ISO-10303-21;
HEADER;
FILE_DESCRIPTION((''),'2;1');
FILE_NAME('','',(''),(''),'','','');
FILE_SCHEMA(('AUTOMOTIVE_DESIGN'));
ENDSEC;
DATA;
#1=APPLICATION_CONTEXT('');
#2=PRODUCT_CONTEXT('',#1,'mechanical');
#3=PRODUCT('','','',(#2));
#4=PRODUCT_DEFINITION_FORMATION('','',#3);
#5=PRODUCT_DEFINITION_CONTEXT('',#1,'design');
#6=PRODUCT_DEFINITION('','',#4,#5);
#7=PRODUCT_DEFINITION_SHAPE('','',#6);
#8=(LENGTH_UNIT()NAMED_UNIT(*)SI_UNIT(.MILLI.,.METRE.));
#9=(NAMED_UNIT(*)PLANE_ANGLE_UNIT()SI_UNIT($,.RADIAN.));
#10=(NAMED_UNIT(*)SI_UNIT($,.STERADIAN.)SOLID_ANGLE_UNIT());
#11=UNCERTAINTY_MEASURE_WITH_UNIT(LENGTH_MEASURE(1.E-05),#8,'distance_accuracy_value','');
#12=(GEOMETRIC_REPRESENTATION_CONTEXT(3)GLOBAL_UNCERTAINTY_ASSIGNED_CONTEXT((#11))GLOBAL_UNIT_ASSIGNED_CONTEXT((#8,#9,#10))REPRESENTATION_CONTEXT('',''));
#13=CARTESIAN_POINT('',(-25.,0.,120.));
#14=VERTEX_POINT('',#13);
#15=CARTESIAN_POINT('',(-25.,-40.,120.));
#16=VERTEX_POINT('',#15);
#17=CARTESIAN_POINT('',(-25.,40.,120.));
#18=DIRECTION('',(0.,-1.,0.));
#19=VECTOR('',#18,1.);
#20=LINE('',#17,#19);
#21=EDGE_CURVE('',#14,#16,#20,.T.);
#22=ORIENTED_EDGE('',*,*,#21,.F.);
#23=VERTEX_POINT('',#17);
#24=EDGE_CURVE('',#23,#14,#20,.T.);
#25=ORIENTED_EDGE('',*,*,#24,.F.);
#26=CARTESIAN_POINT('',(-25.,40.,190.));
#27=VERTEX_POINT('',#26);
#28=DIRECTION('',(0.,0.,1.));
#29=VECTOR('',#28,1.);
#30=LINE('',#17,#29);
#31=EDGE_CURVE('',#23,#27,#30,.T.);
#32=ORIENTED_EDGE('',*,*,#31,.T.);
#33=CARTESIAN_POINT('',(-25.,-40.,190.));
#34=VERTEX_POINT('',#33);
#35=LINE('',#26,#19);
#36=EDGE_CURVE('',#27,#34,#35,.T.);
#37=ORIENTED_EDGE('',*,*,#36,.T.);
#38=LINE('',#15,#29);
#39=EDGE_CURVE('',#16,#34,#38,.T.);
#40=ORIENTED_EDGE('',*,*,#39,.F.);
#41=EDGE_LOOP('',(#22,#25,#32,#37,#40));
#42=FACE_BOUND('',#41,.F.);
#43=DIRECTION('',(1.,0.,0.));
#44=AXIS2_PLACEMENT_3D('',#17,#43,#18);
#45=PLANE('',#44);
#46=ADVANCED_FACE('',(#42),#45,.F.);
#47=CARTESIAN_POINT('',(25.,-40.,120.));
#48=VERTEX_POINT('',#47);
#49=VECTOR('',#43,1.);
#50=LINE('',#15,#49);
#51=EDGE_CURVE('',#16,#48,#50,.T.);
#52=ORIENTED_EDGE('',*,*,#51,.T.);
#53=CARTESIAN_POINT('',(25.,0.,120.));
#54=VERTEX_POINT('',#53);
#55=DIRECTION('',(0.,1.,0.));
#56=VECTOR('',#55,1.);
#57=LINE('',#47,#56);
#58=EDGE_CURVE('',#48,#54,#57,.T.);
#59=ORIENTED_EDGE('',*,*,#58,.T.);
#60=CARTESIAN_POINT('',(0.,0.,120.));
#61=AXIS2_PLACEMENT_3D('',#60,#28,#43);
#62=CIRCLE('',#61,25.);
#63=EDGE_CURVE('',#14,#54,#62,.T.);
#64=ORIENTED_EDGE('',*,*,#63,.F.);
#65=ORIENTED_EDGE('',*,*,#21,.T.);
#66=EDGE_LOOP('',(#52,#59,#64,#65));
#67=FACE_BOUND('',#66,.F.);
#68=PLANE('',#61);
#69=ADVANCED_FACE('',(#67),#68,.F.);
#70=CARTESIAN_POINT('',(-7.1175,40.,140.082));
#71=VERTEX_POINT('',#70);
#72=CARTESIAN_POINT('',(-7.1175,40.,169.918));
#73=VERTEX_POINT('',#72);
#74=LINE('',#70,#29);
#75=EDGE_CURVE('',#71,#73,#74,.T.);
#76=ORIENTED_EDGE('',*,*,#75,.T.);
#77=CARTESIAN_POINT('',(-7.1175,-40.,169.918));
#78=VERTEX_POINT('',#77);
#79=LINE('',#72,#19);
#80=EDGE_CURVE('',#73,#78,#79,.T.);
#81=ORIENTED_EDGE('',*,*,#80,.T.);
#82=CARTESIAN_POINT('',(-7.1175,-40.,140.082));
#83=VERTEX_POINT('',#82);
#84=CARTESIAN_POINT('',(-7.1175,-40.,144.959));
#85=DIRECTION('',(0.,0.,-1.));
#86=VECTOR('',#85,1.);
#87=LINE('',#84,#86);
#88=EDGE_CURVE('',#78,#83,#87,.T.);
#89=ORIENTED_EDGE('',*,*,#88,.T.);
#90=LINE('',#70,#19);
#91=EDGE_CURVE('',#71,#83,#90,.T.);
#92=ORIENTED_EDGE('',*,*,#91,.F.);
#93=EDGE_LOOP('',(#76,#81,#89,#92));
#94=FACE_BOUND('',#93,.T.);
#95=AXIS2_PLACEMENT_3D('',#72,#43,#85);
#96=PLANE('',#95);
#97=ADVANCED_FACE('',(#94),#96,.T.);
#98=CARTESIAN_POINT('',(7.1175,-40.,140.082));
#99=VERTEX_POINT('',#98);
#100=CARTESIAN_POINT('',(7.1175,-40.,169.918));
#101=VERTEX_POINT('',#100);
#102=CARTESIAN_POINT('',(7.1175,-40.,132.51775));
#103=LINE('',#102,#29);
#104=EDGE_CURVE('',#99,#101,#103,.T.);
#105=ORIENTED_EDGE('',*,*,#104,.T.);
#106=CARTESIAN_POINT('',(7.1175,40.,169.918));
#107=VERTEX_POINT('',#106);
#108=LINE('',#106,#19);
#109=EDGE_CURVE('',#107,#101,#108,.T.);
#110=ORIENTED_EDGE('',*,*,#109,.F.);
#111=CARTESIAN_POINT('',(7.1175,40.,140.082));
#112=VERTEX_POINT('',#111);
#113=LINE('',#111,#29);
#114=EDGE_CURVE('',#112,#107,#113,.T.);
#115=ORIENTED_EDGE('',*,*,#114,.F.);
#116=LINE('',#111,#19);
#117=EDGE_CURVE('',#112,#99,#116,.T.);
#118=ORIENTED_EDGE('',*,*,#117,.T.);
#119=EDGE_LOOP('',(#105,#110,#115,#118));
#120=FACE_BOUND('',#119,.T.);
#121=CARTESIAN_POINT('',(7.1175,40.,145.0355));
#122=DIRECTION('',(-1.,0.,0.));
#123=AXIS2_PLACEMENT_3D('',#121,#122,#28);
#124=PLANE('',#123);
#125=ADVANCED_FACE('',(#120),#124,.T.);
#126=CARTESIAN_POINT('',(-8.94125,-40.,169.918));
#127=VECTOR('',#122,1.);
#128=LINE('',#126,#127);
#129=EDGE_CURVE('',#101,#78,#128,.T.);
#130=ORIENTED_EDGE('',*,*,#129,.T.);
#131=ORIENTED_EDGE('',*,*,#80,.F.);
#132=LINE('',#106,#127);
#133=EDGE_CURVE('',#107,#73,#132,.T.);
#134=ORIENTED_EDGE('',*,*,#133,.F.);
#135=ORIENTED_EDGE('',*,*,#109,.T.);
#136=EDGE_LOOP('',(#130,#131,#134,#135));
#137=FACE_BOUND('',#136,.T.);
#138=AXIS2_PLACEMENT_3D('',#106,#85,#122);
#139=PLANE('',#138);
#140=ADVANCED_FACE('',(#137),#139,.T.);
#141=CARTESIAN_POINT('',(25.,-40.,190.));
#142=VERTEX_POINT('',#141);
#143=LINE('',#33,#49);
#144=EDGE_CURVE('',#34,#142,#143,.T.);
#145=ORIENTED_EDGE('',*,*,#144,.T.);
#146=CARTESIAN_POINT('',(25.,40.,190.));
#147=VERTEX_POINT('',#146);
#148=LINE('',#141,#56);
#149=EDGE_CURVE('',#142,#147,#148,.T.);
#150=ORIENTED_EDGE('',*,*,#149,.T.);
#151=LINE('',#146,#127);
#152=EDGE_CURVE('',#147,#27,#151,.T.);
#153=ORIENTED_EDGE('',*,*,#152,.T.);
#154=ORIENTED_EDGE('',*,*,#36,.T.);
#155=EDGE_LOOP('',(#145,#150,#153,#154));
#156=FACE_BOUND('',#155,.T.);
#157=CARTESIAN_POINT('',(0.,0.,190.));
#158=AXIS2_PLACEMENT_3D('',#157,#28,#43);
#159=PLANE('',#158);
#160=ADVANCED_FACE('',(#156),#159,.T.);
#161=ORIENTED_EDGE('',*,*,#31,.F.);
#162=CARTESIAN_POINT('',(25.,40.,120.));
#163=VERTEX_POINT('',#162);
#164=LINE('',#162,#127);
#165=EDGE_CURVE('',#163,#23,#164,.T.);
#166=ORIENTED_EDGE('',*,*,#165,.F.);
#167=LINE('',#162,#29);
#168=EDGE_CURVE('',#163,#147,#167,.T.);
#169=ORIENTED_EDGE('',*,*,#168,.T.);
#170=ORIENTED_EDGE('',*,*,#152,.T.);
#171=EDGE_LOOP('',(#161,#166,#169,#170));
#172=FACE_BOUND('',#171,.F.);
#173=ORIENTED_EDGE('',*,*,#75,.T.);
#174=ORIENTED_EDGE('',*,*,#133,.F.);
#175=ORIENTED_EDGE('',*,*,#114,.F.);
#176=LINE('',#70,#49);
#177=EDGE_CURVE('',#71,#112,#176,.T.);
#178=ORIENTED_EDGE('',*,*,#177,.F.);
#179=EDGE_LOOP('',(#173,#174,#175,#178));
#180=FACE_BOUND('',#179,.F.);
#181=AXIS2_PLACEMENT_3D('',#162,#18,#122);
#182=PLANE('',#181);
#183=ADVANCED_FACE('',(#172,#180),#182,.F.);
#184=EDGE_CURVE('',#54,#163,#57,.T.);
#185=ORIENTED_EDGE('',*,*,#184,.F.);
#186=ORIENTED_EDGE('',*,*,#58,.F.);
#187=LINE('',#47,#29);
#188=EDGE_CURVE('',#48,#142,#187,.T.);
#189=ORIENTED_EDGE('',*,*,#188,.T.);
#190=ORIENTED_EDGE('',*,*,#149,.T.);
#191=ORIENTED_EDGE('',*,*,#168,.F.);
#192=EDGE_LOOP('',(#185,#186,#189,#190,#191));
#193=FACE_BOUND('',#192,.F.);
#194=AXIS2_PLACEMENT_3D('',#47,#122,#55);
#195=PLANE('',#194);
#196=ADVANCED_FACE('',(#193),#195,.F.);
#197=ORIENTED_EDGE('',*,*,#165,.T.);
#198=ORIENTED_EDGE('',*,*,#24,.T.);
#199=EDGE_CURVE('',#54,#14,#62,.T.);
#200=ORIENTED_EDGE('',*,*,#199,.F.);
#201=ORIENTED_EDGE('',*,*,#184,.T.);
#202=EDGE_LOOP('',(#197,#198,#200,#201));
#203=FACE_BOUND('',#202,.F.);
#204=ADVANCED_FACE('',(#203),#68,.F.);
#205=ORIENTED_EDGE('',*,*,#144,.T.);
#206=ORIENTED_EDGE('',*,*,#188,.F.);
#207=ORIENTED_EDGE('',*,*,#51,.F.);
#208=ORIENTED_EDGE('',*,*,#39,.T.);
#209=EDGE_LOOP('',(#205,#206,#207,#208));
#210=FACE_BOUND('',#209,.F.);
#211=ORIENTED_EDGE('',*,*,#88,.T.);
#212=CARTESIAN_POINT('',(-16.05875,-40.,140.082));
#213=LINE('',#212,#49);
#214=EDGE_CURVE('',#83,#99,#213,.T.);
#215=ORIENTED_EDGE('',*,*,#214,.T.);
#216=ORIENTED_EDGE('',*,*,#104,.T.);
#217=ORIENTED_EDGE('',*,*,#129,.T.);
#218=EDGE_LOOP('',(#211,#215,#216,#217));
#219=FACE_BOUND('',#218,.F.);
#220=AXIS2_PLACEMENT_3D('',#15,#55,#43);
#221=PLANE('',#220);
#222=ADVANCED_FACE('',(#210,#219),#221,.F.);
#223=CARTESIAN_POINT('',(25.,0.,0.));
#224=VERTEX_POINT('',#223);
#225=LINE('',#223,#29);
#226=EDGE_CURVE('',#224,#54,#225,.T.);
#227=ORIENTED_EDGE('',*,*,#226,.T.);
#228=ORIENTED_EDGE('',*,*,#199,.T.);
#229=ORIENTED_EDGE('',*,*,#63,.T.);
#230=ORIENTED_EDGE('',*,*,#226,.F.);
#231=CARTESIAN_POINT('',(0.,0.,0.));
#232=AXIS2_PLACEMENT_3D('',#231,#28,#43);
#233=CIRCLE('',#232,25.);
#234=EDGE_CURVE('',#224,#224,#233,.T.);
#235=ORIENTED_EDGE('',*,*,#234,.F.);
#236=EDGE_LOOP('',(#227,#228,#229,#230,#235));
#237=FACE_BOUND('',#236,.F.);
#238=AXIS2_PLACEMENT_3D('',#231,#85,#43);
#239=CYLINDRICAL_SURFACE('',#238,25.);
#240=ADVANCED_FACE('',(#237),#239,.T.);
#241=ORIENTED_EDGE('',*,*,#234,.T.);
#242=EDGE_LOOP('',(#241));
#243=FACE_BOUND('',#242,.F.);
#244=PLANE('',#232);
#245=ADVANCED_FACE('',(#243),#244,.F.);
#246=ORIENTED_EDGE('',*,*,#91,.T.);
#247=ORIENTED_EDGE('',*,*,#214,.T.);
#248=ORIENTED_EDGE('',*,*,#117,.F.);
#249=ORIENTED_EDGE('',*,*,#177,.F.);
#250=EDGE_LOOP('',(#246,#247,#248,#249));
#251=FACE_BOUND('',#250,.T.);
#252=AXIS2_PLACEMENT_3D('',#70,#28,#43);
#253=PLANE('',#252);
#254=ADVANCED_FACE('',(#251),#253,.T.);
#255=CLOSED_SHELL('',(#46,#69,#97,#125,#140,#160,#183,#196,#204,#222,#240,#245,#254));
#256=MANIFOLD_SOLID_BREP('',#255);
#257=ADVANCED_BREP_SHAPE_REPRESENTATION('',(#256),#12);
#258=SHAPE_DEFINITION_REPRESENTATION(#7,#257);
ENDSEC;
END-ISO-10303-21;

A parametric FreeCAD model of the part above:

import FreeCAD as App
import Part
import Sketcher

V = App.Vector
Q = App.Units.Quantity


def add_polygon(sketch, points):
    """Adds a closed chain of lines whose ends are joined by coincident constraints."""
    first, n = sketch.GeometryCount, len(points)
    for a, b in zip(points, points[1:] + points[:1]):
        sketch.addGeometry(Part.LineSegment(App.Vector(*a, 0), App.Vector(*b, 0)), False)
    for i in range(n):
        sketch.addConstraint(Sketcher.Constraint("Coincident", first + i, 2, first + (i + 1) % n, 1))

doc = App.newDocument("Part")
body = doc.addObject("PartDesign::Body", "Body")

# Sketch on XY plane
sketch1 = body.newObject("Sketcher::SketchObject", "Sketch")
sketch1.AttachmentSupport = (doc.getObject("XY_Plane"), [""])
sketch1.MapMode = "FlatFace"
sketch1.addGeometry(Part.Circle(V(0, 0, 0), V(0, 0, 1), 25), False)
sketch1.addConstraint([
    Sketcher.Constraint("Coincident", 0, 3, -1, 1),
    Sketcher.Constraint("Diameter", 0, Q("50 mm")),
])
pad1 = body.newObject("PartDesign::Pad", "Pad")
pad1.Profile = sketch1
pad1.Length = 120

# Sketch on XY plane
sketch2 = body.newObject("Sketcher::SketchObject", "Sketch001")
sketch2.AttachmentSupport = (doc.getObject("XY_Plane"), [""])
sketch2.MapMode = "FlatFace"
sketch2.AttachmentOffset = App.Placement(V(0, 0, 120), App.Rotation())
add_polygon(sketch2, [(-25, 40), (-25, -40), (25, -40), (25, 40)])  # lines 0-3
sketch2.addConstraint([
    Sketcher.Constraint("Vertical", 0),
    Sketcher.Constraint("Horizontal", 1),
    Sketcher.Constraint("Vertical", 2),
    Sketcher.Constraint("Horizontal", 3),
    Sketcher.Constraint("Symmetric", 0, 2, 2, 2, -1, 1),
    Sketcher.Constraint("DistanceX", 1, 1, 1, 2, Q("50 mm")),
    Sketcher.Constraint("DistanceY", 0, 2, 0, 1, Q("80 mm")),
])
pad2 = body.newObject("PartDesign::Pad", "Pad001")
pad2.Profile = sketch2
pad2.Length = 70

# Sketch on XZ plane
sketch3 = body.newObject("Sketcher::SketchObject", "Sketch002")
sketch3.AttachmentSupport = (doc.getObject("XZ_Plane"), [""])
sketch3.MapMode = "FlatFace"
sketch3.AttachmentOffset = App.Placement(V(0, 0, -40), App.Rotation())
add_polygon(sketch3, [(7.1175, 169.918), (7.1175, 140.082), (-7.1175, 140.082), (-7.1175, 169.918)])  # lines 0-3
sketch3.addConstraint([
    Sketcher.Constraint("Vertical", 0),
    Sketcher.Constraint("Horizontal", 1),
    Sketcher.Constraint("Vertical", 2),
    Sketcher.Constraint("Horizontal", 3),
    Sketcher.Constraint("DistanceX", 1, 2, 1, 1, Q("14.235 mm")),
    Sketcher.Constraint("DistanceY", 0, 2, 0, 1, Q("29.836 mm")),
    Sketcher.Constraint("DistanceY", -1, 1, 0, 2, Q("140.082 mm")),
    Sketcher.Constraint("DistanceX", -1, 1, 0, 2, Q("7.1175 mm")),
])
pocket1 = body.newObject("PartDesign::Pocket", "Pocket")
pocket1.Profile = sketch3
pocket1.Type = "ThroughAll"
pocket1.Reversed = True

doc.recompute()
